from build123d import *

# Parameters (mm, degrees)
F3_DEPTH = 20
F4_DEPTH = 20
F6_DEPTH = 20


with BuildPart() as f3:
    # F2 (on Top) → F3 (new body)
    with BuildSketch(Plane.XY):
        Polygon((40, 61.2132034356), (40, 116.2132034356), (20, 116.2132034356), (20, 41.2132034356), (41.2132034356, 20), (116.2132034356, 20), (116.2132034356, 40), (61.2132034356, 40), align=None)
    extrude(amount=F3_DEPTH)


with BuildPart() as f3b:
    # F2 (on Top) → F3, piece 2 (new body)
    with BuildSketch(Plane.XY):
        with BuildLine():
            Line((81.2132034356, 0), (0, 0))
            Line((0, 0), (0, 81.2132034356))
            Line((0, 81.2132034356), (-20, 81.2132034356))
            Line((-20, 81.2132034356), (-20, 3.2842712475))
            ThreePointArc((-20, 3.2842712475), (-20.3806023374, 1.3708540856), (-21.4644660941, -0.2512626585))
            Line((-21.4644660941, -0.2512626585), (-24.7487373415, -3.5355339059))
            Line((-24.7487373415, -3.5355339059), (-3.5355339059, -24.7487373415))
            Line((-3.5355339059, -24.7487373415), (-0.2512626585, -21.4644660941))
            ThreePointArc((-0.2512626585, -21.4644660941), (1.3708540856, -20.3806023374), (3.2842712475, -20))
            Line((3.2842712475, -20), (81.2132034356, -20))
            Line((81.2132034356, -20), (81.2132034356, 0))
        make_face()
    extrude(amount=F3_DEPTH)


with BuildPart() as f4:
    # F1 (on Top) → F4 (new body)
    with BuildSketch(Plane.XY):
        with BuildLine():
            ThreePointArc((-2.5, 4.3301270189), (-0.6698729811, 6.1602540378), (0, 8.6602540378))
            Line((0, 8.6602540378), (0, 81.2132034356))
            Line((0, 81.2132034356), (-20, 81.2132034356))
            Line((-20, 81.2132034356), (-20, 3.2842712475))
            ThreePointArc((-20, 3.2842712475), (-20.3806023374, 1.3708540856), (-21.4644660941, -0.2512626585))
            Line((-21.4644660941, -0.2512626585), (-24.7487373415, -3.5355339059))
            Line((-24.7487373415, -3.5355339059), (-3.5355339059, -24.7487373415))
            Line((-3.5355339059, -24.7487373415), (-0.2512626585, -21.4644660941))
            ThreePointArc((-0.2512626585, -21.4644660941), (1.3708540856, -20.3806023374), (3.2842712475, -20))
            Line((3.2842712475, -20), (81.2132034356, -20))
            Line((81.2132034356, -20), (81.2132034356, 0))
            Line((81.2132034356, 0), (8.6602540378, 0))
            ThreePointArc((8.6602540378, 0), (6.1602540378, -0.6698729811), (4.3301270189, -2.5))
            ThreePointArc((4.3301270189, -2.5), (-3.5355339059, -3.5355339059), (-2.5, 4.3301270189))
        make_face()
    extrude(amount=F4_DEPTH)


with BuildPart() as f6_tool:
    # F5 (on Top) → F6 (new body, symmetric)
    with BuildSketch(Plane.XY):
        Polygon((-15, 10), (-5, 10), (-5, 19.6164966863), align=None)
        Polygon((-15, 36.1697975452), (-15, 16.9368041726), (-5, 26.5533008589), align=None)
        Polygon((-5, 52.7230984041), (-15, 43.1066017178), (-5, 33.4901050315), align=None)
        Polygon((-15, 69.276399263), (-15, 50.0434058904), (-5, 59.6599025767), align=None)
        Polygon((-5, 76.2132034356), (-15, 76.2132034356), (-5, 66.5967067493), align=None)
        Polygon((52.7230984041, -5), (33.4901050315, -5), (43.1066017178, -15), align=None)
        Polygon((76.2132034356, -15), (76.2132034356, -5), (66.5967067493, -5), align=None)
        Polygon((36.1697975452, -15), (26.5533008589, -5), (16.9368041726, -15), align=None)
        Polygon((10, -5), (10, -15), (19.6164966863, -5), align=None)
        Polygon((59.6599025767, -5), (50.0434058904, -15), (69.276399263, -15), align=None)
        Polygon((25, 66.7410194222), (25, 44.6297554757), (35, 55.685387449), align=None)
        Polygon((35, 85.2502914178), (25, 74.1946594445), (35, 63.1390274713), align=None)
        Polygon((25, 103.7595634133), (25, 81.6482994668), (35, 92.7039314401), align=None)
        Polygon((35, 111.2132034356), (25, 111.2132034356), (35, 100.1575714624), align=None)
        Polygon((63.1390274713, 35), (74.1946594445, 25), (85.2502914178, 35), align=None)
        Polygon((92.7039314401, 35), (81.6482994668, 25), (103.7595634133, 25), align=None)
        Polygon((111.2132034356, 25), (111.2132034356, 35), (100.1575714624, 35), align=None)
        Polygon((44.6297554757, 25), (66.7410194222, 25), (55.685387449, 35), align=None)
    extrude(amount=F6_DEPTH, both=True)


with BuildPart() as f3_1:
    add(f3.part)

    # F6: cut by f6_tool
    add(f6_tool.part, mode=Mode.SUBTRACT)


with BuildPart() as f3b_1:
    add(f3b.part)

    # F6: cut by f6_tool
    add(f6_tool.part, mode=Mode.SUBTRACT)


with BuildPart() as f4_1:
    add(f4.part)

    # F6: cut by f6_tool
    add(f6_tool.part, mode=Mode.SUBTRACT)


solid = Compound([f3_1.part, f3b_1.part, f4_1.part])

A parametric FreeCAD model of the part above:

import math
import FreeCAD as App
import Part
import Sketcher

V = App.Vector
Q = App.Units.Quantity


def add_polygon(sketch, points):
    """Adds a closed chain of lines whose ends are joined by coincident constraints."""
    first, n = sketch.GeometryCount, len(points)
    for a, b in zip(points, points[1:] + points[:1]):
        sketch.addGeometry(Part.LineSegment(App.Vector(*a, 0), App.Vector(*b, 0)), False)
    for i in range(n):
        sketch.addConstraint(Sketcher.Constraint("Coincident", first + i, 2, first + (i + 1) % n, 1))

doc = App.newDocument("Part")
body = doc.addObject("PartDesign::Body", "Body")

# Sketch on XY plane
sketch1 = doc.addObject("Sketcher::SketchObject", "Sketch")
body.addObject(sketch1)
sketch1.AttachmentSupport = (doc.XY_Plane, [""])
sketch1.MapMode = "FlatFace"
add_polygon(sketch1, [(40, 61.213203), (40, 116.213203), (20, 116.213203), (20, 41.213203), (41.213203, 20), (116.213203, 20), (116.213203, 40), (61.213203, 40)])  # lines 0-7
sketch1.addConstraint([
    Sketcher.Constraint("Vertical", 0),
    Sketcher.Constraint("Horizontal", 1),
    Sketcher.Constraint("Vertical", 2),
    Sketcher.Constraint("Horizontal", 4),
    Sketcher.Constraint("Vertical", 5),
    Sketcher.Constraint("Horizontal", 6),
    Sketcher.Constraint("Parallel", 3, 7),
    Sketcher.Constraint("Equal", 6, 0),
    Sketcher.Constraint("Equal", 4, 2),
    Sketcher.Constraint("Equal", 3, 7),
    Sketcher.Constraint("DistanceX", 1, 2, 1, 1, Q("20 mm")),
    Sketcher.Constraint("DistanceX", 4, 1, 4, 2, Q("75 mm")),
    Sketcher.Constraint("Angle", 3, Q("-45 deg")),
    Sketcher.Constraint("Distance", 3, Q("30 mm")),
    Sketcher.Constraint("DistanceX", -1, 1, 0, 2, Q("40 mm")),
    Sketcher.Constraint("DistanceY", -1, 1, 3, 2, Q("20 mm")),
])
pad1 = doc.addObject("PartDesign::Pad", "Pad")
body.addObject(pad1)
pad1.Profile = sketch1
pad1.Length = 20
body2 = doc.addObject("PartDesign::Body", "Body001")

# Sketch on XY plane
sketch2 = doc.addObject("Sketcher::SketchObject", "Sketch001")
body2.addObject(sketch2)
sketch2.AttachmentSupport = (doc.getObject("XY_Plane001"), [""])
sketch2.MapMode = "FlatFace"
sketch2.addGeometry([
    Part.LineSegment(V(81.213203, 0, 0), V(0, 0, 0)),  # 0
    Part.LineSegment(V(0, 0, 0), V(0, 81.213203, 0)),  # 1
    Part.LineSegment(V(0, 81.213203, 0), V(-20, 81.213203, 0)),  # 2
    Part.LineSegment(V(-20, 81.213203, 0), V(-20, 3.284271, 0)),  # 3
    Part.ArcOfCircle(Part.Circle(V(-25, 3.284271, 0), V(0, 0, 1), 5), math.radians(-45), math.radians(0)),  # 4
    Part.LineSegment(V(-21.464466, -0.251263, 0), V(-24.748737, -3.535534, 0)),  # 5
    Part.LineSegment(V(-24.748737, -3.535534, 0), V(-3.535534, -24.748737, 0)),  # 6
    Part.LineSegment(V(-3.535534, -24.748737, 0), V(-0.251263, -21.464466, 0)),  # 7
    Part.ArcOfCircle(Part.Circle(V(3.284271, -25, 0), V(0, 0, 1), 5), math.radians(90), math.radians(135)),  # 8
    Part.LineSegment(V(3.284271, -20, 0), V(81.213203, -20, 0)),  # 9
    Part.LineSegment(V(81.213203, -20, 0), V(81.213203, 0, 0)),  # 10
], False)
sketch2.addConstraint([
    Sketcher.Constraint("Coincident", 0, 2, 1, 1),
    Sketcher.Constraint("Coincident", 1, 2, 2, 1),
    Sketcher.Constraint("Coincident", 2, 2, 3, 1),
    Sketcher.Constraint("Tangent", 3, 2, 4, 2),
    Sketcher.Constraint("Tangent", 4, 1, 5, 1),
    Sketcher.Constraint("Coincident", 5, 2, 6, 1),
    Sketcher.Constraint("Coincident", 6, 2, 7, 1),
    Sketcher.Constraint("Tangent", 7, 2, 8, 2),
    Sketcher.Constraint("Tangent", 8, 1, 9, 1),
    Sketcher.Constraint("Coincident", 9, 2, 10, 1),
    Sketcher.Constraint("Coincident", 10, 2, 0, 1),
    Sketcher.Constraint("Horizontal", 0),
    Sketcher.Constraint("Vertical", 1),
    Sketcher.Constraint("Horizontal", 2),
    Sketcher.Constraint("Vertical", 3),
    Sketcher.Constraint("Horizontal", 9),
    Sketcher.Constraint("Vertical", 10),
    Sketcher.Constraint("Coincident", 0, 2, -1, 1),
    Sketcher.Constraint("Equal", 4, 8),
    Sketcher.Constraint("Perpendicular", 5, 6),
    Sketcher.Constraint("Perpendicular", 6, 7),
    Sketcher.Constraint("Equal", 0, 1),
    Sketcher.Constraint("Equal", 9, 3),
    Sketcher.Constraint("Equal", 2, 10),
    Sketcher.Constraint("Equal", 5, 7),
    Sketcher.Constraint("Radius", 4, Q("5 mm")),
    Sketcher.Constraint("DistanceX", 2, 2, 2, 1, Q("20 mm")),
    Sketcher.Constraint("Distance", 6, Q("30 mm")),
    Sketcher.Constraint("Distance", 5, Q("4.644661 mm")),
    Sketcher.Constraint("DistanceX", 0, 2, 0, 1, Q("81.213203 mm")),
])
pad2 = doc.addObject("PartDesign::Pad", "Pad001")
body2.addObject(pad2)
pad2.Profile = sketch2
pad2.Length = 20
body3 = doc.addObject("PartDesign::Body", "Body002")

# Sketch on XY plane
sketch3 = doc.addObject("Sketcher::SketchObject", "Sketch002")
body3.addObject(sketch3)
sketch3.AttachmentSupport = (doc.getObject("XY_Plane002"), [""])
sketch3.MapMode = "FlatFace"
sketch3.addGeometry([
    Part.ArcOfCircle(Part.Circle(V(-5, 8.660254, 0), V(0, 0, 1), 5), math.radians(-60), math.radians(0)),  # 0
    Part.LineSegment(V(0, 8.660254, 0), V(0, 81.213203, 0)),  # 1
    Part.LineSegment(V(0, 81.213203, 0), V(-20, 81.213203, 0)),  # 2
    Part.LineSegment(V(-20, 81.213203, 0), V(-20, 3.284271, 0)),  # 3
    Part.ArcOfCircle(Part.Circle(V(-25, 3.284271, 0), V(0, 0, 1), 5), math.radians(-45), math.radians(0)),  # 4
    Part.LineSegment(V(-21.464466, -0.251263, 0), V(-24.748737, -3.535534, 0)),  # 5
    Part.LineSegment(V(-24.748737, -3.535534, 0), V(-3.535534, -24.748737, 0)),  # 6
    Part.LineSegment(V(-3.535534, -24.748737, 0), V(-0.251263, -21.464466, 0)),  # 7
    Part.ArcOfCircle(Part.Circle(V(3.284271, -25, 0), V(0, 0, 1), 5), math.radians(90), math.radians(135)),  # 8
    Part.LineSegment(V(3.284271, -20, 0), V(81.213203, -20, 0)),  # 9
    Part.LineSegment(V(81.213203, -20, 0), V(81.213203, 0, 0)),  # 10
    Part.LineSegment(V(81.213203, 0, 0), V(8.660254, 0, 0)),  # 11
    Part.ArcOfCircle(Part.Circle(V(8.660254, -5, 0), V(0, 0, 1), 5), math.radians(90), math.radians(150)),  # 12
    Part.ArcOfCircle(Part.Circle(V(0, 0, 0), V(0, 0, 1), 5), math.radians(120), math.radians(330)),  # 13
], False)
sketch3.addConstraint([
    Sketcher.Constraint("Tangent", 0, 2, 1, 1),
    Sketcher.Constraint("Coincident", 1, 2, 2, 1),
    Sketcher.Constraint("Coincident", 2, 2, 3, 1),
    Sketcher.Constraint("Tangent", 3, 2, 4, 2),
    Sketcher.Constraint("Tangent", 4, 1, 5, 1),
    Sketcher.Constraint("Coincident", 5, 2, 6, 1),
    Sketcher.Constraint("Coincident", 6, 2, 7, 1),
    Sketcher.Constraint("Tangent", 7, 2, 8, 2),
    Sketcher.Constraint("Tangent", 8, 1, 9, 1),
    Sketcher.Constraint("Coincident", 9, 2, 10, 1),
    Sketcher.Constraint("Coincident", 10, 2, 11, 1),
    Sketcher.Constraint("Tangent", 11, 2, 12, 1),
    Sketcher.Constraint("Tangent", 12, 2, 13, 2),
    Sketcher.Constraint("Tangent", 13, 1, 0, 1),
    Sketcher.Constraint("Vertical", 1),
    Sketcher.Constraint("Horizontal", 2),
    Sketcher.Constraint("Vertical", 3),
    Sketcher.Constraint("Horizontal", 9),
    Sketcher.Constraint("Vertical", 10),
    Sketcher.Constraint("Horizontal", 11),
    Sketcher.Constraint("Coincident", 13, 3, -1, 1),
    Sketcher.Constraint("Equal", 0, 4),
    Sketcher.Constraint("Equal", 4, 8),
    Sketcher.Constraint("Equal", 8, 12),
    Sketcher.Constraint("Equal", 12, 13),
    Sketcher.Constraint("PointOnObject", 0, 2, -2),
    Sketcher.Constraint("PointOnObject", 10, 2, -1),
    Sketcher.Constraint("Perpendicular", 5, 6),
    Sketcher.Constraint("Perpendicular", 6, 7),
    Sketcher.Constraint("Equal", 11, 1),
    Sketcher.Constraint("Equal", 9, 3),
    Sketcher.Constraint("Equal", 2, 10),
    Sketcher.Constraint("Equal", 5, 7),
    Sketcher.Constraint("Radius", 0, Q("5 mm")),
    Sketcher.Constraint("DistanceX", 2, 2, 2, 1, Q("20 mm")),
    Sketcher.Constraint("Distance", 6, Q("30 mm")),
    Sketcher.Constraint("DistanceX", 11, 2, 11, 1, Q("72.552949 mm")),
    Sketcher.Constraint("Distance", 5, Q("4.644661 mm")),
])
pad3 = doc.addObject("PartDesign::Pad", "Pad002")
body3.addObject(pad3)
pad3.Profile = sketch3
pad3.Length = 20
body4 = doc.addObject("PartDesign::Body", "Body003")
body4.AllowCompound = True

# Sketch on XY plane
sketch4 = doc.addObject("Sketcher::SketchObject", "Sketch003")
body4.addObject(sketch4)
sketch4.AttachmentSupport = (doc.getObject("XY_Plane003"), [""])
sketch4.MapMode = "FlatFace"
add_polygon(sketch4, [(-15, 10), (-5, 10), (-5, 19.616497)])  # lines 0-2
add_polygon(sketch4, [(-15, 36.169798), (-15, 16.936804), (-5, 26.553301)])  # lines 3-5
add_polygon(sketch4, [(-5, 52.723098), (-15, 43.106602), (-5, 33.490105)])  # lines 6-8
add_polygon(sketch4, [(-15, 69.276399), (-15, 50.043406), (-5, 59.659903)])  # lines 9-11
add_polygon(sketch4, [(-5, 76.213203), (-15, 76.213203), (-5, 66.596707)])  # lines 12-14
add_polygon(sketch4, [(52.723098, -5), (33.490105, -5), (43.106602, -15)])  # lines 15-17
add_polygon(sketch4, [(76.213203, -15), (76.213203, -5), (66.596707, -5)])  # lines 18-20
add_polygon(sketch4, [(36.169798, -15), (26.553301, -5), (16.936804, -15)])  # lines 21-23
add_polygon(sketch4, [(10, -5), (10, -15), (19.616497, -5)])  # lines 24-26
add_polygon(sketch4, [(59.659903, -5), (50.043406, -15), (69.276399, -15)])  # lines 27-29
add_polygon(sketch4, [(25, 66.741019), (25, 44.629755), (35, 55.685387)])  # lines 30-32
add_polygon(sketch4, [(35, 85.250291), (25, 74.194659), (35, 63.139027)])  # lines 33-35
add_polygon(sketch4, [(25, 103.759563), (25, 81.648299), (35, 92.703931)])  # lines 36-38
add_polygon(sketch4, [(35, 111.213203), (25, 111.213203), (35, 100.157571)])  # lines 39-41
add_polygon(sketch4, [(63.139027, 35), (74.194659, 25), (85.250291, 35)])  # lines 42-44
add_polygon(sketch4, [(92.703931, 35), (81.648299, 25), (103.759563, 25)])  # lines 45-47
add_polygon(sketch4, [(111.213203, 25), (111.213203, 35), (100.157571, 35)])  # lines 48-50
add_polygon(sketch4, [(44.629755, 25), (66.741019, 25), (55.685387, 35)])  # lines 51-53
sketch4.addConstraint([
    Sketcher.Constraint("Horizontal", 0),
    Sketcher.Constraint("Vertical", 1),
    Sketcher.Constraint("Vertical", 3),
    Sketcher.Constraint("Vertical", 8),
    Sketcher.Constraint("Vertical", 9),
    Sketcher.Constraint("Horizontal", 12),
    Sketcher.Constraint("Vertical", 14),
    Sketcher.Constraint("Horizontal", 15),
    Sketcher.Constraint("Vertical", 18),
    Sketcher.Constraint("Horizontal", 19),
    Sketcher.Constraint("Horizontal", 23),
    Sketcher.Constraint("Vertical", 24),
    Sketcher.Constraint("Horizontal", 26),
    Sketcher.Constraint("Horizontal", 28),
    Sketcher.Constraint("Vertical", 30),
    Sketcher.Constraint("Vertical", 35),
    Sketcher.Constraint("Vertical", 36),
    Sketcher.Constraint("Horizontal", 39),
    Sketcher.Constraint("Vertical", 41),
    Sketcher.Constraint("Horizontal", 44),
    Sketcher.Constraint("Horizontal", 46),
    Sketcher.Constraint("Vertical", 48),
    Sketcher.Constraint("Horizontal", 49),
    Sketcher.Constraint("Horizontal", 51),
    Sketcher.Constraint("Parallel", 2, 4),
    Sketcher.Constraint("Parallel", 4, 6),
    Sketcher.Constraint("Parallel", 5, 7),
    Sketcher.Constraint("Parallel", 6, 10),
    Sketcher.Constraint("Parallel", 7, 11),
    Sketcher.Constraint("Parallel", 11, 13),
    Sketcher.Constraint("Perpendicular", 10, 16),
    Sketcher.Constraint("Perpendicular", 13, 17),
    Sketcher.Constraint("Parallel", 16, 20),
    Sketcher.Constraint("Parallel", 20, 21),
    Sketcher.Constraint("Parallel", 17, 22),
    Sketcher.Constraint("Parallel", 22, 25),
    Sketcher.Constraint("Parallel", 25, 27),
    Sketcher.Constraint("Parallel", 21, 29),
    Sketcher.Constraint("Parallel", 31, 33),
    Sketcher.Constraint("Parallel", 32, 34),
    Sketcher.Constraint("Parallel", 33, 37),
    Sketcher.Constraint("Parallel", 34, 38),
    Sketcher.Constraint("Parallel", 38, 40),
    Sketcher.Constraint("Perpendicular", 37, 42),
    Sketcher.Constraint("Perpendicular", 40, 43),
    Sketcher.Constraint("Parallel", 43, 45),
    Sketcher.Constraint("Parallel", 42, 47),
    Sketcher.Constraint("Parallel", 47, 50),
    Sketcher.Constraint("Parallel", 50, 52),
    Sketcher.Constraint("Parallel", 45, 53),
    Sketcher.Constraint("Horizontal", 17, 2, 18, 2),
    Sketcher.Constraint("Horizontal", 16, 2, 20, 2),
    Sketcher.Constraint("Horizontal", 19, 2, 21, 2),
    Sketcher.Constraint("Horizontal", 20, 2, 22, 2),
    Sketcher.Constraint("Horizontal", 23, 2, 24, 2),
    Sketcher.Constraint("Horizontal", 21, 2, 25, 2),
    Sketcher.Constraint("Horizontal", 24, 2, 27, 2),
    Sketcher.Constraint("Horizontal", 26, 2, 29, 2),
    Sketcher.Constraint("Horizontal", 42, 2, 45, 2),
    Sketcher.Constraint("Horizontal", 44, 2, 47, 2),
    Sketcher.Constraint("Horizontal", 47, 2, 48, 2),
    Sketcher.Constraint("Horizontal", 46, 2, 50, 2),
    Sketcher.Constraint("Horizontal", 50, 2, 51, 2),
    Sketcher.Constraint("Horizontal", 49, 2, 52, 2),
    Sketcher.Constraint("Vertical", 2, 2, 3, 2),
    Sketcher.Constraint("Vertical", 1, 2, 4, 2),
    Sketcher.Constraint("Vertical", 5, 2, 6, 2),
    Sketcher.Constraint("Vertical", 4, 2, 7, 2),
    Sketcher.Constraint("Vertical", 6, 2, 9, 2),
    Sketcher.Constraint("Vertical", 8, 2, 10, 2),
    Sketcher.Constraint("Vertical", 11, 2, 12, 2),
    Sketcher.Constraint("Vertical", 10, 2, 13, 2),
    Sketcher.Constraint("Vertical", 32, 2, 33, 2),
    Sketcher.Constraint("Vertical", 31, 2, 34, 2),
    Sketcher.Constraint("Vertical", 33, 2, 36, 2),
    Sketcher.Constraint("Vertical", 35, 2, 37, 2),
    Sketcher.Constraint("Vertical", 38, 2, 39, 2),
    Sketcher.Constraint("Vertical", 37, 2, 40, 2),
    Sketcher.Constraint("Equal", 19, 26),
    Sketcher.Constraint("Equal", 12, 39),
    Sketcher.Constraint("Equal", 26, 1),
    Sketcher.Constraint("Equal", 51, 30),
    Sketcher.Constraint("Equal", 49, 41),
    Sketcher.Constraint("DistanceX", 0, 1, 0, 2, Q("10 mm")),
    Sketcher.Constraint("DistanceX", 0, 2, -1, 1, Q("5 mm")),
    Sketcher.Constraint("DistanceY", -1, 1, 0, 2, Q("10 mm")),
    Sketcher.Constraint("DistanceY", 15, 2, -1, 1, Q("5 mm")),
    Sketcher.Constraint("DistanceX", -1, 1, 24, 2, Q("10 mm")),
    Sketcher.Constraint("DistanceX", -1, 1, 30, 2, Q("25 mm")),
    Sketcher.Constraint("DistanceY", -1, 1, 42, 2, Q("25 mm")),
    Sketcher.Constraint("Angle", 2, Q("-136.119992 deg")),
    Sketcher.Constraint("DistanceX", 49, 2, 49, 1, Q("11.055632 mm")),
    Sketcher.Constraint("DistanceY", -1, 1, 4, 2, Q("26.553301 mm")),
    Sketcher.Constraint("DistanceY", -1, 1, 6, 2, Q("43.106602 mm")),
    Sketcher.Constraint("DistanceY", -1, 1, 11, 2, Q("69.276399 mm")),
    Sketcher.Constraint("DistanceX", -1, 1, 16, 2, Q("43.106602 mm")),
    Sketcher.Constraint("DistanceX", -1, 1, 21, 2, Q("26.553301 mm")),
    Sketcher.Constraint("DistanceX", -1, 1, 28, 2, Q("69.276399 mm")),
    Sketcher.Constraint("DistanceY", -1, 1, 36, 2, Q("81.648299 mm")),
    Sketcher.Constraint("DistanceX", -1, 1, 45, 2, Q("81.648299 mm")),
    Sketcher.Constraint("DistanceY", 10, 2, 12, 2, Q("16.553301 mm")),
    Sketcher.Constraint("DistanceX", 16, 2, 18, 2, Q("33.106602 mm")),
    Sketcher.Constraint("DistanceY", -1, 1, 32, 2, Q("66.741019 mm")),
    Sketcher.Constraint("DistanceY", -1, 1, 33, 2, Q("74.194659 mm")),
    Sketcher.Constraint("DistanceY", -1, 1, 40, 2, Q("100.157571 mm")),
    Sketcher.Constraint("DistanceX", -1, 1, 42, 2, Q("74.194659 mm")),
    Sketcher.Constraint("DistanceX", -1, 1, 49, 2, Q("100.157571 mm")),
    Sketcher.Constraint("DistanceX", -1, 1, 51, 2, Q("66.741019 mm")),
])
pad4 = doc.addObject("PartDesign::Pad", "Pad003")
body4.addObject(pad4)
pad4.Profile = sketch4
pad4.Length = 40
pad4.Midplane = True
doc.recompute()

body5 = doc.addObject("PartDesign::Body", "Body004")
body5.BaseFeature = body4
boolean = doc.addObject("PartDesign::Boolean", "Boolean")
body.addObject(boolean)
boolean.Type = "Cut"
boolean.addObjects([body5])
doc.recompute()

body6 = doc.addObject("PartDesign::Body", "Body005")
body6.BaseFeature = body4
boolean2 = doc.addObject("PartDesign::Boolean", "Boolean001")
body2.addObject(boolean2)
boolean2.Type = "Cut"
boolean2.addObjects([body6])
doc.recompute()

boolean3 = doc.addObject("PartDesign::Boolean", "Boolean002")
body3.addObject(boolean3)
boolean3.Type = "Cut"
boolean3.addObjects([body4])

doc.recompute()
